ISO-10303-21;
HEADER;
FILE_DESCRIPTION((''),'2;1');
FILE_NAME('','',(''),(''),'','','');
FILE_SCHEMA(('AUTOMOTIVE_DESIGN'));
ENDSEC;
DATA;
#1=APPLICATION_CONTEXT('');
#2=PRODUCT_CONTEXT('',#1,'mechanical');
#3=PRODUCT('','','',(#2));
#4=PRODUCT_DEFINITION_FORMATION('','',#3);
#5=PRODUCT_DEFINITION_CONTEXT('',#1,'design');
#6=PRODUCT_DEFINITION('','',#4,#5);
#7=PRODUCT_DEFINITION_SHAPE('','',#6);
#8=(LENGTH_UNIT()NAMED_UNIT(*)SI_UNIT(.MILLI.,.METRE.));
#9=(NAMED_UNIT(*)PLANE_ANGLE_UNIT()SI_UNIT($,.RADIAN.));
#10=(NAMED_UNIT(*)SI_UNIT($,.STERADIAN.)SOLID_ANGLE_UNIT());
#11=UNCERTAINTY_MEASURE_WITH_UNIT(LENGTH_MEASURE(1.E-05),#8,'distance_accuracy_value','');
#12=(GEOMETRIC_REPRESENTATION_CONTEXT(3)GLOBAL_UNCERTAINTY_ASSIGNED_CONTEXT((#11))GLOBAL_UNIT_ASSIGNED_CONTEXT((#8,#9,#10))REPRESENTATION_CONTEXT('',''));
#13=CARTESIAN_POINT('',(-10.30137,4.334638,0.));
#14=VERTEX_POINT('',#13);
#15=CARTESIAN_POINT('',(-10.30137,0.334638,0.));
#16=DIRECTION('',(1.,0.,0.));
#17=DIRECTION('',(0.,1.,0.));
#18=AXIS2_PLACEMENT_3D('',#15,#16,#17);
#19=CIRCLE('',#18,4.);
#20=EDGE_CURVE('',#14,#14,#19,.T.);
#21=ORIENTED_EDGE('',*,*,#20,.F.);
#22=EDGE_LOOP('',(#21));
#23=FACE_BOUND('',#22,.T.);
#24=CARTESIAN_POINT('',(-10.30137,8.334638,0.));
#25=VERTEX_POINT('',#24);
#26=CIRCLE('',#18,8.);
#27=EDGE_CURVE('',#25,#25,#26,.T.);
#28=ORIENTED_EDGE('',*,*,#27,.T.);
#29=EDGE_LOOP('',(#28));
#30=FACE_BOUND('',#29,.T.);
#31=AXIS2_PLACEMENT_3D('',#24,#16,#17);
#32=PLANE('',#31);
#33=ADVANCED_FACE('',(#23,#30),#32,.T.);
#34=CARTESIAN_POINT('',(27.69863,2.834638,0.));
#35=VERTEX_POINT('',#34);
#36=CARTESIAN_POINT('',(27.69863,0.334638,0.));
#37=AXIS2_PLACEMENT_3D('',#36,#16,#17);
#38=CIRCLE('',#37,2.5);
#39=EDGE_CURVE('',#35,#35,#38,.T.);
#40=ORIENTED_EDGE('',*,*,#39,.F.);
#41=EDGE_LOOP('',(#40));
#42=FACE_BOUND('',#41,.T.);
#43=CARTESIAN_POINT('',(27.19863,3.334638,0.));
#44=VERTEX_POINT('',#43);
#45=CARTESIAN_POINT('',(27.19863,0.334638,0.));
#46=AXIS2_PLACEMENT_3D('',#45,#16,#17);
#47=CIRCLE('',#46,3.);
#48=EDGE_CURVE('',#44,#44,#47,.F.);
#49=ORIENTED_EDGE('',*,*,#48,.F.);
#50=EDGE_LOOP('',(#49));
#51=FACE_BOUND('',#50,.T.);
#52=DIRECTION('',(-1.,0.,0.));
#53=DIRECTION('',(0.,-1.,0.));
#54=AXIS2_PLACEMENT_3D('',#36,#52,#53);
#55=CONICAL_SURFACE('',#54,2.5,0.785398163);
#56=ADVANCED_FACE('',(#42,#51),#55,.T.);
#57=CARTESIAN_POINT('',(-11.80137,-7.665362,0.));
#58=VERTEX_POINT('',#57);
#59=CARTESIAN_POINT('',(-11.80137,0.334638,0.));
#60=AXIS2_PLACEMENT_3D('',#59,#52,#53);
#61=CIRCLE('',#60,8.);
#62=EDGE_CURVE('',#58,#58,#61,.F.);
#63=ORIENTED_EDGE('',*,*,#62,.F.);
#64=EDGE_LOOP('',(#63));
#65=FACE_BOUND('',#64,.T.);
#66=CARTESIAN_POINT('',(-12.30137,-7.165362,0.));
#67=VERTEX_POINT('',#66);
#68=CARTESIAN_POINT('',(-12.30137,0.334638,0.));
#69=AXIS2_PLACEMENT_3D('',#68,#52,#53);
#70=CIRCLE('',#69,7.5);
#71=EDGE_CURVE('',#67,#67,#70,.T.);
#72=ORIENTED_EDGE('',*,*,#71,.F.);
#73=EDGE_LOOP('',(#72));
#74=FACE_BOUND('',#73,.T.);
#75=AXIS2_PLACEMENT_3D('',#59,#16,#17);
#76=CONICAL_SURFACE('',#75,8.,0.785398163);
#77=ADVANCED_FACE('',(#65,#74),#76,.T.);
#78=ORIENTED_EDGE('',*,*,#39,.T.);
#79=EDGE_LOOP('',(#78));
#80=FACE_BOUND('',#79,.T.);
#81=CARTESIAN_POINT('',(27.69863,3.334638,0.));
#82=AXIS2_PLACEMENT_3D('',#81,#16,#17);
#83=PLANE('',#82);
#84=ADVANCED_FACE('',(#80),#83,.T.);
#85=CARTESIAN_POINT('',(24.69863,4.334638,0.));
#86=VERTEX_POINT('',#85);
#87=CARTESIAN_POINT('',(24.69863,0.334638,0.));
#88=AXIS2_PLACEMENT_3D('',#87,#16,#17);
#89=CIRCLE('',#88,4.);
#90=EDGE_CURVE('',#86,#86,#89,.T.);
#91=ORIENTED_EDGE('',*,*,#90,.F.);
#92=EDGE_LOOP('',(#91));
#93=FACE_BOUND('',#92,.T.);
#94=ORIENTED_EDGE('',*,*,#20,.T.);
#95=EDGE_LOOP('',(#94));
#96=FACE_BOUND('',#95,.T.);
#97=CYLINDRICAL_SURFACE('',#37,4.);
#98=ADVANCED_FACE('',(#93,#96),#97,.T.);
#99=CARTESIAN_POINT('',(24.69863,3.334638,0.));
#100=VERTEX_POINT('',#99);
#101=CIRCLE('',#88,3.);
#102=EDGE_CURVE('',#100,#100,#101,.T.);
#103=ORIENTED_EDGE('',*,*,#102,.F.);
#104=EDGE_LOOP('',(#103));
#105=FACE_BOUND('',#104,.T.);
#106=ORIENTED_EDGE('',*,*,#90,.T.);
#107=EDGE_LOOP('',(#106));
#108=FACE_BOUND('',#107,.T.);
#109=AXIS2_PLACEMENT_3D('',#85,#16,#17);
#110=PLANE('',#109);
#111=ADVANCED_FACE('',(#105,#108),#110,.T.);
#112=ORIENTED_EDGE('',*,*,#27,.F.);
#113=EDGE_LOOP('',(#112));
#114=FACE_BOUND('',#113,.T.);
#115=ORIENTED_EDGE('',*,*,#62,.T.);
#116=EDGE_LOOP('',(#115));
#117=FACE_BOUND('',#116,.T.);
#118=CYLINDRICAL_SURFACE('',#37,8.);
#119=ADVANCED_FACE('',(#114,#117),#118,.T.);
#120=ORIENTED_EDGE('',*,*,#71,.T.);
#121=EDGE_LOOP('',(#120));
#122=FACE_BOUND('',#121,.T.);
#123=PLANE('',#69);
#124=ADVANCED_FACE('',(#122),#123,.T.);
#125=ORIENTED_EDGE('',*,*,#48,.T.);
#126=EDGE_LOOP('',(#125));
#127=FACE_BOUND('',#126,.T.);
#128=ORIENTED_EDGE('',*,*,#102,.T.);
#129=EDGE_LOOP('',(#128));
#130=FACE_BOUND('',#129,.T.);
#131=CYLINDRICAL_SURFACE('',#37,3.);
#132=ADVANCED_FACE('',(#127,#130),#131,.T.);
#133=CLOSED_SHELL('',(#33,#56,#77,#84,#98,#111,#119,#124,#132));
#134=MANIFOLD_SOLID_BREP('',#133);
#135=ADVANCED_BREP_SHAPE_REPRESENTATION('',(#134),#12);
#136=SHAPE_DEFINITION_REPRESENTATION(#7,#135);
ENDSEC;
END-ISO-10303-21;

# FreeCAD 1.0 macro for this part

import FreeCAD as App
import Part
import Sketcher
from FreeCAD import Vector
Q = App.Units.Quantity


def edges_at(feature, points):
    """Names of the edges that pass closest to the given points."""
    edges = feature.Shape.Edges
    near = lambda p: min(range(len(edges)), key=lambda i: edges[i].distToShape(Part.Vertex(*p))[0])
    return sorted({f"Edge{near(p) + 1}" for p in points})


def add_polygon(sketch, points):
    """Adds a closed chain of lines whose ends are joined by coincident constraints."""
    first, n = sketch.GeometryCount, len(points)
    for a, b in zip(points, points[1:] + points[:1]):
        sketch.addGeometry(Part.LineSegment(App.Vector(*a, 0), App.Vector(*b, 0)), False)
    for i in range(n):
        sketch.addConstraint(Sketcher.Constraint("Coincident", first + i, 2, first + (i + 1) % n, 1))

doc = App.newDocument("Part")
body = doc.addObject("PartDesign::Body", "Body")

sketch1 = doc.addObject("Sketcher::SketchObject", "Sketch")
body.addObject(sketch1)
sketch1.AttachmentSupport = (doc.XY_Plane, [""])
sketch1.MapMode = "FlatFace"
add_polygon(sketch1, [(-12.30137, 8.334638), (-12.30137, 0.334638), (27.69863, 0.334638), (27.69863, 3.334638), (24.69863, 3.334638), (24.69863, 4.334638), (-10.30137, 4.334638), (-10.30137, 8.334638)])
sketch1.addGeometry(Part.LineSegment(Vector(27.69863, 0.334638, 0), Vector(-12.30137, 0.334638, 0)), True)
sketch1.addConstraint([
    Sketcher.Constraint("Vertical", 0),
    Sketcher.Constraint("Horizontal", 1),
    Sketcher.Constraint("Vertical", 2),
    Sketcher.Constraint("Horizontal", 3),
    Sketcher.Constraint("Vertical", 4),
    Sketcher.Constraint("Horizontal", 5),
    Sketcher.Constraint("Vertical", 6),
    Sketcher.Constraint("Horizontal", 7),
    Sketcher.Constraint("Horizontal", 8),
    Sketcher.Constraint("Coincident", 8, 1, 1, 2),
    Sketcher.Constraint("Vertical", 7, 2, 8, 2),
    Sketcher.Constraint("Equal", 3, 2),
    Sketcher.Constraint("DistanceX", 1, 1, 1, 2, Q("40 mm")),
    Sketcher.Constraint("DistanceX", 3, 2, 3, 1, Q("3 mm")),
    Sketcher.Constraint("DistanceX", 5, 2, 5, 1, Q("35 mm")),
    Sketcher.Constraint("DistanceY", 0, 2, 0, 1, Q("8 mm")),
    Sketcher.Constraint("DistanceY", 4, 1, 4, 2, Q("1 mm")),
    Sketcher.Constraint("DistanceX", 0, 2, -1, 1, Q("12.30137 mm")),
    Sketcher.Constraint("DistanceY", -1, 1, 0, 2, Q("0.334638 mm")),
])
revolution = doc.addObject("PartDesign::Revolution", "Revolution")
body.addObject(revolution)
revolution.Profile = sketch1
revolution.ReferenceAxis = (sketch1, ["Axis0"])
revolution.Angle = 360
doc.recompute()

chamfer = doc.addObject("PartDesign::Chamfer", "Chamfer")
body.addObject(chamfer)
chamfer.Base = (revolution, edges_at(revolution, [(27.699, -2.665, 0), (-12.301, -7.665, 0)]))
chamfer.Size = 0.5

doc.recompute()
